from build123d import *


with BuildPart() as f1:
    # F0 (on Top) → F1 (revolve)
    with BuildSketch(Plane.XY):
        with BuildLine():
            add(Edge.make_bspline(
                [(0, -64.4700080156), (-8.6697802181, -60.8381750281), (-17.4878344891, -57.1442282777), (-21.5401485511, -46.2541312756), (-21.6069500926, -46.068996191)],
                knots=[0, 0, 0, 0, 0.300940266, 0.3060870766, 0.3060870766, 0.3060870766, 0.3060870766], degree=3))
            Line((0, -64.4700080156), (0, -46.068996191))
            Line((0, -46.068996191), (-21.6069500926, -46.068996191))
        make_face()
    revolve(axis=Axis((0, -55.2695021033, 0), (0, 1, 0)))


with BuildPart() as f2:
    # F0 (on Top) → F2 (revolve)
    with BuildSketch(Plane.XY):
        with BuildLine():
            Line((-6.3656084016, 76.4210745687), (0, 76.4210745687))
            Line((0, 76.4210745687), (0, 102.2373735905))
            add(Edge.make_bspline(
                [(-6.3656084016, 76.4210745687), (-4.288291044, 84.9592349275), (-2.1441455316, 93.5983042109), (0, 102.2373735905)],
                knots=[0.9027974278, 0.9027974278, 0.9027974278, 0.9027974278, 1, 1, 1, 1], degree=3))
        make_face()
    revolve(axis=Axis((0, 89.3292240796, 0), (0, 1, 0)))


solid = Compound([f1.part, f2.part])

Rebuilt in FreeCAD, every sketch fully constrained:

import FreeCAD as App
import Part
import Sketcher

V = App.Vector

doc = App.newDocument("Part")
body = doc.addObject("PartDesign::Body", "Body")

# Sketch on XY plane
sketch1 = body.newObject("Sketcher::SketchObject", "Sketch")
sketch1.AttachmentSupport = (doc.getObject("XY_Plane"), [""])
sketch1.MapMode = "FlatFace"
sketch1.addGeometry([
    Part.BSplineCurve([V(0, -64.470008, 0), V(-8.66978, -60.838175, 0), V(-17.487834, -57.144228, 0), V(-21.540149, -46.254131, 0), V(-21.60695, -46.068996, 0)], [4, 1, 4], [0, 0.300940266, 0.306087077], False, 3, [1, 1, 1, 1, 1], False),
    Part.LineSegment(V(0, -64.470008, 0), V(0, -46.068996, 0)),
    Part.LineSegment(V(0, -46.068996, 0), V(-21.60695, -46.068996, 0)),
], False)
sketch1.addConstraint([
    Sketcher.Constraint("Block", 0),
    Sketcher.Constraint("Coincident", 0, 1, 1, 1),
    Sketcher.Constraint("Coincident", 1, 2, 2, 1),
    Sketcher.Constraint("Coincident", 2, 2, 0, 2),
    Sketcher.Constraint("Vertical", 1),
    Sketcher.Constraint("Horizontal", 2),
])
revolution = body.newObject("PartDesign::Revolution", "Revolution")
revolution.Profile = sketch1
revolution.ReferenceAxis = (sketch1, ["V_Axis"])
revolution.Angle = 360
body2 = doc.addObject("PartDesign::Body", "Body001")

# Sketch on XY plane
sketch2 = body2.newObject("Sketcher::SketchObject", "Sketch001")
sketch2.AttachmentSupport = (doc.getObject("XY_Plane001"), [""])
sketch2.MapMode = "FlatFace"
sketch2.addGeometry([
    Part.LineSegment(V(-6.365608, 76.421075, 0), V(0, 76.421075, 0)),
    Part.LineSegment(V(0, 76.421075, 0), V(0, 102.237374, 0)),
    Part.BSplineCurve([V(-6.365608, 76.421075, 0), V(-4.288291, 84.959235, 0), V(-2.144146, 93.598304, 0), V(0, 102.237374, 0)], [4, 4], [0.902797428, 1], False, 3, [1, 1, 1, 1], False),
], False)
sketch2.addConstraint([
    Sketcher.Constraint("Block", 2),
    Sketcher.Constraint("Coincident", 0, 2, 1, 1),
    Sketcher.Constraint("Coincident", 1, 2, 2, 2),
    Sketcher.Constraint("Coincident", 2, 1, 0, 1),
    Sketcher.Constraint("Horizontal", 0),
    Sketcher.Constraint("Vertical", 1),
])
revolution2 = body2.newObject("PartDesign::Revolution", "Revolution001")
revolution2.Profile = sketch2
revolution2.ReferenceAxis = (sketch2, ["V_Axis"])
revolution2.Angle = 360

doc.recompute()
